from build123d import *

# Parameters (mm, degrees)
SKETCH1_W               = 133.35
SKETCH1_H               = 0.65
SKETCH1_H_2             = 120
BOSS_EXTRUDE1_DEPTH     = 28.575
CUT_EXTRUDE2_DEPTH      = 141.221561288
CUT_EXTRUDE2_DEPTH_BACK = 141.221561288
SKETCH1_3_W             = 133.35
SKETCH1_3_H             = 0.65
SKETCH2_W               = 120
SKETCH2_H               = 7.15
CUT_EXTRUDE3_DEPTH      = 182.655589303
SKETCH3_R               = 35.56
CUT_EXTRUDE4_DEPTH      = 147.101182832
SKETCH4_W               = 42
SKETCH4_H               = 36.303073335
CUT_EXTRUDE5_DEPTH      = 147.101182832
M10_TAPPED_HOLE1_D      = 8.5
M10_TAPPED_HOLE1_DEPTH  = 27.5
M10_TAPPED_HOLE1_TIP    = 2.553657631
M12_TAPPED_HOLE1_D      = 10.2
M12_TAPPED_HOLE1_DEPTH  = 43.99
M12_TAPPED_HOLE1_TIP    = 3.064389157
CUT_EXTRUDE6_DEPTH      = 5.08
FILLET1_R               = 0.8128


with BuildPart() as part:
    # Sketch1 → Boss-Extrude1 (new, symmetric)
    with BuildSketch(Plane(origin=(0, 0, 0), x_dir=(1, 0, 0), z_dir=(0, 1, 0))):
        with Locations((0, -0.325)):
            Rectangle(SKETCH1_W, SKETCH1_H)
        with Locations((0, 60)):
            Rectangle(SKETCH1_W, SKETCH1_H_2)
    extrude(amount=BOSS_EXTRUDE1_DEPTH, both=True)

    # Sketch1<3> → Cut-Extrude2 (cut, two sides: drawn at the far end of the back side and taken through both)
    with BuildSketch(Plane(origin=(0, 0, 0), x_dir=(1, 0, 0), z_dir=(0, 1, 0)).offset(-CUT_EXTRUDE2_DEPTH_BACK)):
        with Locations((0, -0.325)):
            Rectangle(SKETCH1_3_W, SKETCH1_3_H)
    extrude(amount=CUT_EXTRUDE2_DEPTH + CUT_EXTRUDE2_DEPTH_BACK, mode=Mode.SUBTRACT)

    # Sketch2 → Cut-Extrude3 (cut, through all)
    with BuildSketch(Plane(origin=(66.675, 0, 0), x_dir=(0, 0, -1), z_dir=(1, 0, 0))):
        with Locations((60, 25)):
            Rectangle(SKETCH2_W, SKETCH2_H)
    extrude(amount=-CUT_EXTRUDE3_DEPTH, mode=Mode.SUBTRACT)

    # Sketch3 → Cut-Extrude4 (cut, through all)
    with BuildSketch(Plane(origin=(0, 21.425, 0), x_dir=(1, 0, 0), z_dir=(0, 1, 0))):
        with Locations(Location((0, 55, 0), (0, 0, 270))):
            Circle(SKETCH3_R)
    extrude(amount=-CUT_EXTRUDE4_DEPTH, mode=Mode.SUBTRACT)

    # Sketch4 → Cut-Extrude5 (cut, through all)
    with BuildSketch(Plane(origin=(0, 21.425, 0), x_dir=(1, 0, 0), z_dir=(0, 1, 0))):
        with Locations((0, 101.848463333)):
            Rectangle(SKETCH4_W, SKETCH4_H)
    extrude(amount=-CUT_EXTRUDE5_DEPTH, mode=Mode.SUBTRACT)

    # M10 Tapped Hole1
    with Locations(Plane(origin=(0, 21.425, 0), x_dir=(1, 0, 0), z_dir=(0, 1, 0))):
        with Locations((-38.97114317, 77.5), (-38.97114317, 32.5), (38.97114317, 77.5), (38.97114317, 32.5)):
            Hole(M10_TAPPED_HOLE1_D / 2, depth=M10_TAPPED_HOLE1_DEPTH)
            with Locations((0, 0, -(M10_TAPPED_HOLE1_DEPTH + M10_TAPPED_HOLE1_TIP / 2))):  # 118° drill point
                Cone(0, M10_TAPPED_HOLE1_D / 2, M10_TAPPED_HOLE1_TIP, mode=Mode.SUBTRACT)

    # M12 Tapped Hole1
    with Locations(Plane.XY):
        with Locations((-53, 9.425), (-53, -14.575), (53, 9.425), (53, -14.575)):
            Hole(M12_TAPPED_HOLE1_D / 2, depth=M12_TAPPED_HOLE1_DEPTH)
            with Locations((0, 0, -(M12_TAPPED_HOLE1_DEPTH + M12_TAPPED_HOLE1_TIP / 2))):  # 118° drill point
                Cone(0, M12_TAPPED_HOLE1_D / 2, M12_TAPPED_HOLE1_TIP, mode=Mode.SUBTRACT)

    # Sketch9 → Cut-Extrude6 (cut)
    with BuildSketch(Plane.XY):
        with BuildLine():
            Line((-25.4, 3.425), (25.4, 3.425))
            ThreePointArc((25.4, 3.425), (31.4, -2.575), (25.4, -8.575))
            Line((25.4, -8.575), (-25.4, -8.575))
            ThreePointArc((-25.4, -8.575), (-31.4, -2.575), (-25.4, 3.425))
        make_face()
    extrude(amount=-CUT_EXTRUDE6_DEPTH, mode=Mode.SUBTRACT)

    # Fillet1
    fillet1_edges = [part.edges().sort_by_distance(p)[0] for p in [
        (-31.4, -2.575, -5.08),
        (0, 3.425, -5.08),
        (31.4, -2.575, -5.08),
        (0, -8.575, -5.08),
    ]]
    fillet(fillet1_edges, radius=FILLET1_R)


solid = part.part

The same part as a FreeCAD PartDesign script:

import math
import FreeCAD as App
import Part
import Sketcher

V = App.Vector
Q = App.Units.Quantity


def edges_at(feature, points):
    """Names of the edges that pass closest to the given points."""
    edges = feature.Shape.Edges
    near = lambda p: min(range(len(edges)), key=lambda i: edges[i].distToShape(Part.Vertex(*p))[0])
    return sorted({f"Edge{near(p) + 1}" for p in points})


def add_polygon(sketch, points):
    """Adds a closed chain of lines whose ends are joined by coincident constraints."""
    first, n = sketch.GeometryCount, len(points)
    for a, b in zip(points, points[1:] + points[:1]):
        sketch.addGeometry(Part.LineSegment(App.Vector(*a, 0), App.Vector(*b, 0)), False)
    for i in range(n):
        sketch.addConstraint(Sketcher.Constraint("Coincident", first + i, 2, first + (i + 1) % n, 1))

doc = App.newDocument("Part")
body = doc.addObject("PartDesign::Body", "Body")

# Sketch on XZ plane
sketch1 = doc.addObject("Sketcher::SketchObject", "Sketch")
body.addObject(sketch1)
sketch1.AttachmentSupport = (doc.XZ_Plane, [""])
sketch1.MapMode = "FlatFace"
add_polygon(sketch1, [(-67, 1), (67, 1), (67, -120), (-67, -120)])  # lines 0-3
sketch1.addConstraint([
    Sketcher.Constraint("Horizontal", 0),
    Sketcher.Constraint("Vertical", 1),
    Sketcher.Constraint("Horizontal", 2),
    Sketcher.Constraint("Vertical", 3),
    Sketcher.Constraint("DistanceX", 0, 1, 0, 2, Q("5.25 in")),
    Sketcher.Constraint("DistanceY", 1, 2, 1, 1, Q("4.75 in")),
    Sketcher.Constraint("DistanceX", -1, 1, 0, 2, Q("2.625 in")),
    Sketcher.Constraint("DistanceY", -1, 1, 0, 2, 0.65),
])
pad1 = doc.addObject("PartDesign::Pad", "Pad")
body.addObject(pad1)
pad1.Profile = sketch1
pad1.Length = Q("2.25 in")
pad1.Midplane = True

# Sketch on XZ plane
sketch2 = doc.addObject("Sketcher::SketchObject", "Sketch001")
body.addObject(sketch2)
sketch2.AttachmentSupport = (doc.XZ_Plane, [""])
sketch2.MapMode = "FlatFace"
add_polygon(sketch2, [(-66.7, 0), (-66.7, 0.7), (66.7, 0.7), (66.7, 0)])  # lines 0-3
sketch2.addConstraint([
    Sketcher.Constraint("Vertical", 0),
    Sketcher.Constraint("Horizontal", 1),
    Sketcher.Constraint("Vertical", 2),
    Sketcher.Constraint("Horizontal", 3),
    Sketcher.Constraint("Symmetric", 2, 2, 3, 2, -1, 1),
    Sketcher.Constraint("DistanceX", 1, 1, 1, 2, Q("5.25 in")),
    Sketcher.Constraint("DistanceY", 0, 1, 0, 2, 0.65),
])
pocket1 = doc.addObject("PartDesign::Pocket", "Pocket")
body.addObject(pocket1)
pocket1.Profile = sketch2
pocket1.Type = "ThroughAll"
pocket1.Midplane = True

# Sketch on YZ plane
sketch3 = doc.addObject("Sketcher::SketchObject", "Sketch002")
body.addObject(sketch3)
sketch3.AttachmentSupport = (doc.YZ_Plane, [""])
sketch3.MapMode = "FlatFace"
sketch3.AttachmentOffset = App.Placement(V(0, 0, 2.625 * 25.4), App.Rotation())
add_polygon(sketch3, [(29, 0), (21, 0), (21, -120), (29, -120)])  # lines 0-3
sketch3.addConstraint([
    Sketcher.Constraint("Horizontal", 0),
    Sketcher.Constraint("Vertical", 1),
    Sketcher.Constraint("Horizontal", 2),
    Sketcher.Constraint("Vertical", 3),
    Sketcher.Constraint("PointOnObject", 0, 2, -1),
    Sketcher.Constraint("DistanceX", -1, 1, 2, 2, Q("1.125 in")),
    Sketcher.Constraint("DistanceX", 0, 2, 0, 1, 7.15),
    Sketcher.Constraint("DistanceY", 1, 2, 1, 1, 120.0),
])
pocket2 = doc.addObject("PartDesign::Pocket", "Pocket001")
body.addObject(pocket2)
pocket2.Profile = sketch3
pocket2.Type = "ThroughAll"

# Sketch on XZ plane
sketch4 = doc.addObject("Sketcher::SketchObject", "Sketch003")
body.addObject(sketch4)
sketch4.AttachmentSupport = (doc.XZ_Plane, [""])
sketch4.MapMode = "FlatFace"
sketch4.AttachmentOffset = App.Placement(V(0, 0, -21.425), App.Rotation())
sketch4.addGeometry(Part.Circle(V(0, -55, 0), V(0, 0, 1), 36), False)
sketch4.addConstraint([
    Sketcher.Constraint("PointOnObject", 0, 3, -2),
    Sketcher.Constraint("Diameter", 0, Q("2.8 in")),
    Sketcher.Constraint("DistanceY", 0, 3, -1, 1, 55.0),
])
pocket3 = doc.addObject("PartDesign::Pocket", "Pocket002")
body.addObject(pocket3)
pocket3.Profile = sketch4
pocket3.Type = "ThroughAll"
pocket3.Reversed = True

# Sketch on XZ plane
sketch5 = doc.addObject("Sketcher::SketchObject", "Sketch004")
body.addObject(sketch5)
sketch5.AttachmentSupport = (doc.XZ_Plane, [""])
sketch5.MapMode = "FlatFace"
sketch5.AttachmentOffset = App.Placement(V(0, 0, -21.425), App.Rotation())
add_polygon(sketch5, [(-21, -120), (-21, -84), (21, -84), (21, -120)])  # lines 0-3
sketch5.addConstraint([
    Sketcher.Constraint("Vertical", 0),
    Sketcher.Constraint("Horizontal", 1),
    Sketcher.Constraint("Vertical", 2),
    Sketcher.Constraint("Horizontal", 3),
    Sketcher.Constraint("DistanceX", 1, 1, 1, 2, 42.0),
    Sketcher.Constraint("DistanceX", 0, 2, -1, 1, 21.0),
    Sketcher.Constraint("DistanceY", 2, 2, -1, 1, 120.0),
    Sketcher.Constraint("DistanceY", 0, 1, 0, 2, 36.303073),
])
pocket4 = doc.addObject("PartDesign::Pocket", "Pocket003")
body.addObject(pocket4)
pocket4.Profile = sketch5
pocket4.Type = "ThroughAll"
pocket4.Reversed = True

# Sketch on XZ plane
sketch6 = doc.addObject("Sketcher::SketchObject", "Sketch005")
body.addObject(sketch6)
sketch6.AttachmentSupport = (doc.XZ_Plane, [""])
sketch6.MapMode = "FlatFace"
sketch6.AttachmentOffset = App.Placement(V(0, 0, -21.425), App.Rotation())
sketch6.addGeometry([
    Part.Circle(V(-39, -77.5, 0), V(0, 0, 1), 4.2),
    Part.Circle(V(-39, -32.5, 0), V(0, 0, 1), 4.2),
    Part.Circle(V(39, -77.5, 0), V(0, 0, 1), 4.2),
    Part.Circle(V(39, -32.5, 0), V(0, 0, 1), 4.2),
], False)
sketch6.addConstraint([
    Sketcher.Constraint("Equal", 0, 1),
    Sketcher.Constraint("Equal", 1, 2),
    Sketcher.Constraint("Equal", 2, 3),
    Sketcher.Constraint("Symmetric", 0, 3, 2, 3, -2),
    Sketcher.Constraint("Symmetric", 1, 3, 3, 3, -2),
    Sketcher.Constraint("Vertical", 0, 3, 1, 3),
    Sketcher.Constraint("Diameter", 0, 8.5),
    Sketcher.Constraint("DistanceY", 0, 3, -1, 1, 77.5),
    Sketcher.Constraint("DistanceY", 1, 3, -1, 1, 32.5),
    Sketcher.Constraint("DistanceX", 0, 3, -1, 1, 38.971143),
])
doc.recompute()
hole = doc.addObject("PartDesign::Hole", "Hole")
body.addObject(hole)
hole.Profile = sketch6
hole.ThreadType = "None"
hole.Diameter = 8.5
hole.DepthType = "Dimension"
hole.Depth = 27.5
hole.DrillPoint = "Angled"
hole.DrillPointAngle = 118
hole.Reversed = True

# Sketch on XY plane
sketch7 = doc.addObject("Sketcher::SketchObject", "Sketch006")
body.addObject(sketch7)
sketch7.AttachmentSupport = (doc.XY_Plane, [""])
sketch7.MapMode = "FlatFace"
sketch7.addGeometry([
    Part.Circle(V(-53, 9, 0), V(0, 0, 1), 5),
    Part.Circle(V(-53, -15, 0), V(0, 0, 1), 5),
    Part.Circle(V(53, 9, 0), V(0, 0, 1), 5),
    Part.Circle(V(53, -15, 0), V(0, 0, 1), 5),
], False)
sketch7.addConstraint([
    Sketcher.Constraint("Equal", 0, 1),
    Sketcher.Constraint("Equal", 1, 2),
    Sketcher.Constraint("Equal", 2, 3),
    Sketcher.Constraint("Symmetric", 0, 3, 2, 3, -2),
    Sketcher.Constraint("Symmetric", 1, 3, 3, 3, -2),
    Sketcher.Constraint("Vertical", 0, 3, 1, 3),
    Sketcher.Constraint("Diameter", 0, 10.2),
    Sketcher.Constraint("DistanceX", 0, 3, -1, 1, 53.0),
    Sketcher.Constraint("DistanceY", -1, 1, 0, 3, 9.425),
    Sketcher.Constraint("DistanceY", 1, 3, -1, 1, 14.575),
])
doc.recompute()
hole2 = doc.addObject("PartDesign::Hole", "Hole001")
body.addObject(hole2)
hole2.Profile = sketch7
hole2.ThreadType = "None"
hole2.Diameter = 10.2
hole2.DepthType = "Dimension"
hole2.Depth = 43.99
hole2.DrillPoint = "Angled"
hole2.DrillPointAngle = 118

# Sketch on XY plane
sketch8 = doc.addObject("Sketcher::SketchObject", "Sketch007")
body.addObject(sketch8)
sketch8.AttachmentSupport = (doc.XY_Plane, [""])
sketch8.MapMode = "FlatFace"
sketch8.addGeometry([
    Part.LineSegment(V(25, 3, 0), V(-25, 3, 0)),
    Part.ArcOfCircle(Part.Circle(V(-25, -3, 0), V(0, 0, 1), 6), math.radians(90), math.radians(270)),
    Part.LineSegment(V(-25, -9, 0), V(25, -9, 0)),
    Part.ArcOfCircle(Part.Circle(V(25, -3, 0), V(0, 0, 1), 6), math.radians(-90), math.radians(90)),
], False)
sketch8.addConstraint([
    Sketcher.Constraint("Tangent", 0, 2, 1, 1),
    Sketcher.Constraint("Tangent", 1, 2, 2, 1),
    Sketcher.Constraint("Tangent", 2, 2, 3, 1),
    Sketcher.Constraint("Tangent", 3, 2, 0, 1),
    Sketcher.Constraint("Horizontal", 0),
    Sketcher.Constraint("Horizontal", 2),
    Sketcher.Constraint("DistanceX", 0, 2, 0, 1, Q("2 in")),
    Sketcher.Constraint("DistanceX", 1, 3, -1, 1, Q("1 in")),
    Sketcher.Constraint("Radius", 1, 6.0),
    Sketcher.Constraint("DistanceY", 1, 3, -1, 1, 2.575),
])
pocket5 = doc.addObject("PartDesign::Pocket", "Pocket004")
body.addObject(pocket5)
pocket5.Profile = sketch8
pocket5.Length = Q("0.2 in")
doc.recompute()

fillet = doc.addObject("PartDesign::Fillet", "Fillet")
body.addObject(fillet)
fillet.Base = (pocket5, edges_at(pocket5, [
    (-31.4, -2.575, -5.08),
    (0, 3.425, -5.08),
    (31.4, -2.575, -5.08),
    (0, -8.575, -5.08),
]))
fillet.Radius = Q("0.032 in")

doc.recompute()
